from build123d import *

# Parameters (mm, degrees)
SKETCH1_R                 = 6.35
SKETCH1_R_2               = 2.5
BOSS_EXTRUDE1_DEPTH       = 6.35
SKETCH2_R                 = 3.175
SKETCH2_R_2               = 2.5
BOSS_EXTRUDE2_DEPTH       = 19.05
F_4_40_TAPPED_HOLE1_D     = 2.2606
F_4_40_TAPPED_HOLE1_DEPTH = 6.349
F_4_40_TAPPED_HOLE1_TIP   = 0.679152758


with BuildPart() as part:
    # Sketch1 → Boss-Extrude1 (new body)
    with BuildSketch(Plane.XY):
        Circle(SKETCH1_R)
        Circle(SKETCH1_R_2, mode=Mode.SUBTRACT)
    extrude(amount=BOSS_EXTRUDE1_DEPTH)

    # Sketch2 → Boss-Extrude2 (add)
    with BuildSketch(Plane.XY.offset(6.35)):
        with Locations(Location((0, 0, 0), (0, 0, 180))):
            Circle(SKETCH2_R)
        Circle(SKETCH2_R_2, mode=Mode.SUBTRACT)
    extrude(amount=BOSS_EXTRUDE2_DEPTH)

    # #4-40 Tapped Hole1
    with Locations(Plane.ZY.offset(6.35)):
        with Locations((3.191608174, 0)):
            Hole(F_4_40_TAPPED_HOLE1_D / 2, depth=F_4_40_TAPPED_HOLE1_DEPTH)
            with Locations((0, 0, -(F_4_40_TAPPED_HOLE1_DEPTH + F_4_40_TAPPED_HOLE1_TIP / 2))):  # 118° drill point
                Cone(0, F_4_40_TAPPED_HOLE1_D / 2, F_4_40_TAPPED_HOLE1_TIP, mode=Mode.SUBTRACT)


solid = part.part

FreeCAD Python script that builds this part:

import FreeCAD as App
import Part
import Sketcher
from FreeCAD import Vector
Q = App.Units.Quantity

doc = App.newDocument("Part")
body = doc.addObject("PartDesign::Body", "Body")

sketch1 = body.newObject("Sketcher::SketchObject", "Sketch")
sketch1.AttachmentSupport = (doc.getObject("XY_Plane"), [""])
sketch1.MapMode = "FlatFace"
sketch1.addGeometry([
    Part.Circle(Vector(0, 0, 0), Vector(0, 0, 1), 6.3),
    Part.Circle(Vector(0, 0, 0), Vector(0, 0, 1), 2.5),
], False)
sketch1.addConstraint([
    Sketcher.Constraint("Coincident", 0, 3, -1, 1),
    Sketcher.Constraint("Coincident", 1, 3, -1, 1),
    Sketcher.Constraint("Diameter", 0, Q("0.5 in")),
    Sketcher.Constraint("Diameter", 1, Q("5 mm")),
])
pad1 = body.newObject("PartDesign::Pad", "Pad")
pad1.Profile = sketch1
pad1.Length = Q("0.25 in")

sketch2 = body.newObject("Sketcher::SketchObject", "Sketch001")
sketch2.AttachmentSupport = (doc.getObject("XY_Plane"), [""])
sketch2.MapMode = "FlatFace"
sketch2.AttachmentOffset = App.Placement(Vector(0, 0, 0.25 * 25.4), App.Rotation())
sketch2.addGeometry([
    Part.Circle(Vector(0, 0, 0), Vector(0, 0, 1), 3.2),
    Part.Circle(Vector(0, 0, 0), Vector(0, 0, 1), 2.5),
], False)
sketch2.addConstraint([
    Sketcher.Constraint("Coincident", 0, 3, -1, 1),
    Sketcher.Constraint("Coincident", 1, 3, -1, 1),
    Sketcher.Constraint("Diameter", 0, Q("0.25 in")),
    Sketcher.Constraint("Diameter", 1, Q("5 mm")),
])
pad2 = body.newObject("PartDesign::Pad", "Pad001")
pad2.Profile = sketch2
pad2.Length = Q("0.75 in")

sketch3 = body.newObject("Sketcher::SketchObject", "Sketch002")
sketch3.AttachmentSupport = (doc.getObject("YZ_Plane"), [""])
sketch3.MapMode = "FlatFace"
sketch3.AttachmentOffset = App.Placement(Vector(0, 0, -0.25 * 25.4), App.Rotation())
sketch3.addGeometry(Part.Circle(Vector(0, 3.2, 0), Vector(0, 0, 1), 1.1), False)
sketch3.addConstraint([
    Sketcher.Constraint("PointOnObject", 0, 3, -2),
    Sketcher.Constraint("Diameter", 0, Q("0.089 in")),
    Sketcher.Constraint("DistanceY", -1, 1, 0, 3, Q("3.191608 mm")),
])
doc.recompute()
hole = body.newObject("PartDesign::Hole", "Hole")
hole.Profile = sketch3
hole.ThreadType = "None"
hole.Diameter = Q("0.089 in")
hole.DepthType = "Dimension"
hole.Depth = 6.349
hole.DrillPoint = "Angled"
hole.DrillPointAngle = 118
hole.Reversed = True

doc.recompute()
